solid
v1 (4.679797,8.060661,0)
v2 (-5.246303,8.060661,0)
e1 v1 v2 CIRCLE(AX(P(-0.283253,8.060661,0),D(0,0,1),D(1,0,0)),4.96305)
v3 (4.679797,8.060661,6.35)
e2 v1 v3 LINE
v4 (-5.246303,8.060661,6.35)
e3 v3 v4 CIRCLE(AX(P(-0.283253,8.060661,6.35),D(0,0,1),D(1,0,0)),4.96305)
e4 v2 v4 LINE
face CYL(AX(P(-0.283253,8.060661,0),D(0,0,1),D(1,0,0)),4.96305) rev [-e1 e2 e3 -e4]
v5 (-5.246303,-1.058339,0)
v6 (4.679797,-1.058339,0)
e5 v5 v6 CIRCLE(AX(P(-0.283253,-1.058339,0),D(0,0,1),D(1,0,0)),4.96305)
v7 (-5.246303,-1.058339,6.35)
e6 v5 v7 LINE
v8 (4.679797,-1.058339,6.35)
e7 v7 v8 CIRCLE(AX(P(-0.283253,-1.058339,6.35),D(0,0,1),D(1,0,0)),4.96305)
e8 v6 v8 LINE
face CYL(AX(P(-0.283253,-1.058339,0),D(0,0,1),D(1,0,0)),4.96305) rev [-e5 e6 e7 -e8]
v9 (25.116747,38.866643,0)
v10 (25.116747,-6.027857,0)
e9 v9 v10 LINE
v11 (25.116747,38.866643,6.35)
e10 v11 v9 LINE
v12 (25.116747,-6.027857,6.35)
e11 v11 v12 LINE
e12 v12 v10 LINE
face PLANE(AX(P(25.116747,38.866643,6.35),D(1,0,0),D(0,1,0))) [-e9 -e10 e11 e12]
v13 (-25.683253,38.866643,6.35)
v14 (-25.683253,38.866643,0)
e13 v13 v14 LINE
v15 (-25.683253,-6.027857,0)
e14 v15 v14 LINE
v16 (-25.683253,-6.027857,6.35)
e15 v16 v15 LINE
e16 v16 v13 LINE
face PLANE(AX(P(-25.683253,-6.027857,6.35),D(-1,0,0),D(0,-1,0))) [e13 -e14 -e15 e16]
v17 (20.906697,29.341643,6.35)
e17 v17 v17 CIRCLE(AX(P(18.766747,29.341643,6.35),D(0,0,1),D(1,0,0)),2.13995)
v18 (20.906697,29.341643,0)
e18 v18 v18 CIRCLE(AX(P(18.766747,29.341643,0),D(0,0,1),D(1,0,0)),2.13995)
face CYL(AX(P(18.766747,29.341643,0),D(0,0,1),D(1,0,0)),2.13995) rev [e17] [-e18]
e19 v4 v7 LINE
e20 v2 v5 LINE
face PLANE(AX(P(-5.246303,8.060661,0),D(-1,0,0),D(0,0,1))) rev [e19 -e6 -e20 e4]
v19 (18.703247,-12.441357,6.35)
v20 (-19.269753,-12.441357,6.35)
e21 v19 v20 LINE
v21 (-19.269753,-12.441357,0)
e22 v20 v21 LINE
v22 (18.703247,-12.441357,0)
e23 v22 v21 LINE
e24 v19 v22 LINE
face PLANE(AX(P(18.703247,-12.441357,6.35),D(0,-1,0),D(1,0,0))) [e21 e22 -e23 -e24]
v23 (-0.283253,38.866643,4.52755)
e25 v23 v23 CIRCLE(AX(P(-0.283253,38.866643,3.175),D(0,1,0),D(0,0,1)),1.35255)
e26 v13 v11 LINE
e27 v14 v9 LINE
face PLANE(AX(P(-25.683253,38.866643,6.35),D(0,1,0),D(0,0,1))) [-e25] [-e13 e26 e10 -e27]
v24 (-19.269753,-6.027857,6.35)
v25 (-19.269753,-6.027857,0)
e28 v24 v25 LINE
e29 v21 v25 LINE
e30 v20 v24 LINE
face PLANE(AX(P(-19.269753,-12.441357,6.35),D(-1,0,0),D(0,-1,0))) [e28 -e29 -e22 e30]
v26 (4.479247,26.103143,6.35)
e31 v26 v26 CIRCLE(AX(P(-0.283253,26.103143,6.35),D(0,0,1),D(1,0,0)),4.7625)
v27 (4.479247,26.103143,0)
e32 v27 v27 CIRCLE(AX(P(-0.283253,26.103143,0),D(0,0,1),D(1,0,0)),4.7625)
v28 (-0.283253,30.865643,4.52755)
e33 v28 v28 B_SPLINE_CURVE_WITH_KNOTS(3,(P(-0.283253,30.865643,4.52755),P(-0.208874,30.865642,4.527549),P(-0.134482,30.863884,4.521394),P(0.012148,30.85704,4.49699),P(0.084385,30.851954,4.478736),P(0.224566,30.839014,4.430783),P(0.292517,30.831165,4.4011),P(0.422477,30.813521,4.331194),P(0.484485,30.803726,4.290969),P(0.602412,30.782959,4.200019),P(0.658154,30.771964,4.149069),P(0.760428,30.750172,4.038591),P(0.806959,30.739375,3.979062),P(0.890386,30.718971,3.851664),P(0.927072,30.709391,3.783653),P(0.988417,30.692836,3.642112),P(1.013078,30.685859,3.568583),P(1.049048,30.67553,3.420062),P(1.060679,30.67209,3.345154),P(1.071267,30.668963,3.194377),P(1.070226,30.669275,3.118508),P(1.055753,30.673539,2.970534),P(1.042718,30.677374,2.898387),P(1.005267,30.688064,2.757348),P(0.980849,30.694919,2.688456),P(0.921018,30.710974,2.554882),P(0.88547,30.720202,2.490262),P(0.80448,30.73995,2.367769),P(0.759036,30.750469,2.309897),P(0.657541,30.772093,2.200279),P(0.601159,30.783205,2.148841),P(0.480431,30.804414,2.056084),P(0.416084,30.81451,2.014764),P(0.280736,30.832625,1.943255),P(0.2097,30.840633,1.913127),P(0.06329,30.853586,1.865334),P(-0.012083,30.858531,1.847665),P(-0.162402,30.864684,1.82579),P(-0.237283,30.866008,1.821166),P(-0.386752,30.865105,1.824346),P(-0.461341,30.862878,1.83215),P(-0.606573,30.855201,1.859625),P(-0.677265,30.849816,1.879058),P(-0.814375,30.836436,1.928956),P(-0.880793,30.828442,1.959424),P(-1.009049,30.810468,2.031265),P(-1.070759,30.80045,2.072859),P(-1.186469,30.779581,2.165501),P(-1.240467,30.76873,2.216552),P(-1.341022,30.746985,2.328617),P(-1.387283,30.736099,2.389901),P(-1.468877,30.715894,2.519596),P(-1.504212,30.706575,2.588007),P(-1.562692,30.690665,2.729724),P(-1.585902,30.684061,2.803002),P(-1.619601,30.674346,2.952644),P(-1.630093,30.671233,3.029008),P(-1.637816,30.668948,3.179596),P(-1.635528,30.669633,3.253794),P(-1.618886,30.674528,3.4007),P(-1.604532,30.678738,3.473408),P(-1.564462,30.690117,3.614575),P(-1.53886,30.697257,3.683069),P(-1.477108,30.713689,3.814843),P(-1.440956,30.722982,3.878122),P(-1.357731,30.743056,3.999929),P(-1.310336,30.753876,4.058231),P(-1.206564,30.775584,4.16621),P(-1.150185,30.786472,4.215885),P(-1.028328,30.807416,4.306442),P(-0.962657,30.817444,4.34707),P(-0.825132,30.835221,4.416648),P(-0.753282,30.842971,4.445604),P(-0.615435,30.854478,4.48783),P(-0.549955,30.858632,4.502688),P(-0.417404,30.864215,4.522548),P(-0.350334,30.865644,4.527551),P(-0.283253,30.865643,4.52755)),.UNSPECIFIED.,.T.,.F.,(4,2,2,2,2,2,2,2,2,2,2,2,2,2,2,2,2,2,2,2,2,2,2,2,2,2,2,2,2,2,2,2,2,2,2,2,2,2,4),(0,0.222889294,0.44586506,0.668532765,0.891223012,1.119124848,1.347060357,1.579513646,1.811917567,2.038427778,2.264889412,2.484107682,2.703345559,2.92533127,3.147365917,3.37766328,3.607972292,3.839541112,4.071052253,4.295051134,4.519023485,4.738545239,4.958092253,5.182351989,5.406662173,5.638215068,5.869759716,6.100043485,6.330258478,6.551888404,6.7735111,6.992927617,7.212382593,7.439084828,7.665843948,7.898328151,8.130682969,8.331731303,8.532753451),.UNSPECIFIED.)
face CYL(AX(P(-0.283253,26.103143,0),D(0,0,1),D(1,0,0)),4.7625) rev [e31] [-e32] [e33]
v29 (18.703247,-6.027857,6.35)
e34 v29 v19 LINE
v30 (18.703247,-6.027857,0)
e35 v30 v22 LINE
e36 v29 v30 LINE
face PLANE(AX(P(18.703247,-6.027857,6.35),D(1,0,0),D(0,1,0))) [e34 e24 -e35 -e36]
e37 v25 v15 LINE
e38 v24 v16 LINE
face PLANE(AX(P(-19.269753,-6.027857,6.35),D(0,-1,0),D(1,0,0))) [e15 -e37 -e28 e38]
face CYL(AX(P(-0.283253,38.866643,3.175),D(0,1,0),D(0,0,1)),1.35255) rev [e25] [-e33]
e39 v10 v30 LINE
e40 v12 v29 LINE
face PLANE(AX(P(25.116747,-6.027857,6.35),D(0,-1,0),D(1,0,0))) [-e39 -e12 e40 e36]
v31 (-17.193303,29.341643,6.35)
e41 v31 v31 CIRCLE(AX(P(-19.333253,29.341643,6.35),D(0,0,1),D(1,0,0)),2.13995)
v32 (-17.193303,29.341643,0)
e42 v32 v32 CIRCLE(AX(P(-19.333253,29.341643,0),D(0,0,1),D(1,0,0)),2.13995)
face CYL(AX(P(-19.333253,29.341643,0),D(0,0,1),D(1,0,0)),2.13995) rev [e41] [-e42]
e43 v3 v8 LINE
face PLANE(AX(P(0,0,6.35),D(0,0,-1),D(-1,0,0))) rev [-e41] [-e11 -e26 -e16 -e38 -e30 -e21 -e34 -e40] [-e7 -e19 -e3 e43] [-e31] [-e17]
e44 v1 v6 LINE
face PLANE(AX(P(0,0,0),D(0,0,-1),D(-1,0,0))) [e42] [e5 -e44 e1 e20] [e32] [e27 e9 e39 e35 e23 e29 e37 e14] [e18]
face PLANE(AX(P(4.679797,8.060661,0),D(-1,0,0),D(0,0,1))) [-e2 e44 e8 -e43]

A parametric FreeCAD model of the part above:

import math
import FreeCAD as App
import Part
import Sketcher

V = App.Vector
Q = App.Units.Quantity

doc = App.newDocument("Part")
body = doc.addObject("PartDesign::Body", "Body")

# Sketch on XY plane
sketch1 = doc.addObject("Sketcher::SketchObject", "Sketch")
body.addObject(sketch1)
sketch1.AttachmentSupport = (doc.XY_Plane, [""])
sketch1.MapMode = "FlatFace"
sketch1.addGeometry([
    Part.LineSegment(V(25.116747, 38.866643, 0), V(-25.683253, 38.866643, 0)),  # 0
    Part.LineSegment(V(-25.683253, 38.866643, 0), V(-25.683253, -6.027857, 0)),  # 1
    Part.LineSegment(V(-25.683253, -6.027857, 0), V(-19.269753, -6.027857, 0)),  # 2
    Part.LineSegment(V(-19.269753, -6.027857, 0), V(-19.269753, -12.441357, 0)),  # 3
    Part.LineSegment(V(-19.269753, -12.441357, 0), V(18.703247, -12.441357, 0)),  # 4
    Part.LineSegment(V(18.703247, -12.441357, 0), V(18.703247, -6.027857, 0)),  # 5
    Part.LineSegment(V(18.703247, -6.027857, 0), V(25.116747, -6.027857, 0)),  # 6
    Part.LineSegment(V(25.116747, -6.027857, 0), V(25.116747, 38.866643, 0)),  # 7
], False)
sketch1.addConstraint([
    Sketcher.Constraint("Coincident", 0, 2, 1, 1),
    Sketcher.Constraint("Coincident", 1, 2, 2, 1),
    Sketcher.Constraint("Coincident", 2, 2, 3, 1),
    Sketcher.Constraint("Coincident", 3, 2, 4, 1),
    Sketcher.Constraint("Coincident", 4, 2, 5, 1),
    Sketcher.Constraint("Coincident", 5, 2, 6, 1),
    Sketcher.Constraint("Coincident", 6, 2, 7, 1),
    Sketcher.Constraint("Coincident", 7, 2, 0, 1),
    Sketcher.Constraint("Horizontal", 0),
    Sketcher.Constraint("Vertical", 1),
    Sketcher.Constraint("Horizontal", 2),
    Sketcher.Constraint("Vertical", 3),
    Sketcher.Constraint("Horizontal", 4),
    Sketcher.Constraint("Vertical", 5),
    Sketcher.Constraint("Horizontal", 6),
    Sketcher.Constraint("Vertical", 7),
    Sketcher.Constraint("Horizontal", 2, 2, 5, 2),
    Sketcher.Constraint("Equal", 2, 6),
    Sketcher.Constraint("Equal", 6, 3),
    Sketcher.Constraint("DistanceX", 0, 2, 0, 1, Q("2 in")),
    Sketcher.Constraint("DistanceX", 4, 1, 4, 2, Q("1.495 in")),
    Sketcher.Constraint("DistanceY", 3, 2, 0, 2, Q("2.02 in")),
    Sketcher.Constraint("DistanceX", 0, 2, -1, 1, 25.683253),
    Sketcher.Constraint("DistanceY", -1, 1, 0, 2, 38.866643),
])
pad1 = doc.addObject("PartDesign::Pad", "Pad")
body.addObject(pad1)
pad1.Profile = sketch1
pad1.Length = Q("0.25 in")

# Sketch on XY plane
sketch2 = doc.addObject("Sketcher::SketchObject", "Sketch001")
body.addObject(sketch2)
sketch2.AttachmentSupport = (doc.XY_Plane, [""])
sketch2.MapMode = "FlatFace"
sketch2.AttachmentOffset = App.Placement(V(0, 0, 0.25 * 25.4), App.Rotation())
sketch2.addGeometry(Part.Circle(V(-0.283253, 26.103143, 0), V(0, 0, 1), 4.7625), False)
sketch2.addConstraint([
    Sketcher.Constraint("Diameter", 0, Q("0.375 in")),
    Sketcher.Constraint("DistanceX", 0, 3, -1, 1, 0.283253),
    Sketcher.Constraint("DistanceY", -1, 1, 0, 3, 26.103143),
])
pocket1 = doc.addObject("PartDesign::Pocket", "Pocket")
body.addObject(pocket1)
pocket1.Profile = sketch2
pocket1.Length = Q("0.25 in")

# Sketch on XY plane
sketch3 = doc.addObject("Sketcher::SketchObject", "Sketch002")
body.addObject(sketch3)
sketch3.AttachmentSupport = (doc.XY_Plane, [""])
sketch3.MapMode = "FlatFace"
sketch3.AttachmentOffset = App.Placement(V(0, 0, 0.25 * 25.4), App.Rotation())
sketch3.addGeometry([
    Part.Circle(V(-19.333253, 29.341643, 0), V(0, 0, 1), 2.13995),
    Part.Circle(V(18.766747, 29.341643, 0), V(0, 0, 1), 2.13995),
], False)
sketch3.addConstraint([
    Sketcher.Constraint("Equal", 0, 1),
    Sketcher.Constraint("Horizontal", 0, 3, 1, 3),
    Sketcher.Constraint("Diameter", 0, Q("0.1685 in")),
    Sketcher.Constraint("DistanceX", 0, 3, 1, 3, Q("1.5 in")),
    Sketcher.Constraint("DistanceX", 0, 3, -1, 1, 19.333253),
    Sketcher.Constraint("DistanceY", -1, 1, 0, 3, 29.341643),
])
pocket2 = doc.addObject("PartDesign::Pocket", "Pocket001")
body.addObject(pocket2)
pocket2.Profile = sketch3
pocket2.Length = Q("0.25 in")

# Sketch on XY plane
sketch4 = doc.addObject("Sketcher::SketchObject", "Sketch003")
body.addObject(sketch4)
sketch4.AttachmentSupport = (doc.XY_Plane, [""])
sketch4.MapMode = "FlatFace"
sketch4.AttachmentOffset = App.Placement(V(0, 0, 0.25 * 25.4), App.Rotation())
sketch4.addGeometry([
    Part.LineSegment(V(4.679797, -1.058339, 0), V(4.679797, 8.060661, 0)),
    Part.ArcOfCircle(Part.Circle(V(-0.283253, 8.060661, 0), V(0, 0, 1), 4.96305), math.radians(0), math.radians(180)),
    Part.LineSegment(V(-5.246303, 8.060661, 0), V(-5.246303, -1.058339, 0)),
    Part.ArcOfCircle(Part.Circle(V(-0.283253, -1.058339, 0), V(0, 0, 1), 4.96305), math.radians(-180), math.radians(0)),
], False)
sketch4.addConstraint([
    Sketcher.Constraint("Tangent", 0, 2, 1, 1),
    Sketcher.Constraint("Tangent", 1, 2, 2, 1),
    Sketcher.Constraint("Tangent", 2, 2, 3, 1),
    Sketcher.Constraint("Tangent", 3, 2, 0, 1),
    Sketcher.Constraint("Vertical", 0),
    Sketcher.Constraint("Vertical", 2),
    Sketcher.Constraint("Radius", 1, 4.96305),
    Sketcher.Constraint("DistanceY", 0, 1, 0, 2, 9.119),
    Sketcher.Constraint("DistanceY", -1, 1, 1, 3, 8.060661),
    Sketcher.Constraint("DistanceX", 1, 3, -1, 1, 0.283253),
])
pocket3 = doc.addObject("PartDesign::Pocket", "Pocket002")
body.addObject(pocket3)
pocket3.Profile = sketch4
pocket3.Length = Q("0.25 in")

# Sketch on XZ plane
sketch5 = doc.addObject("Sketcher::SketchObject", "Sketch004")
body.addObject(sketch5)
sketch5.AttachmentSupport = (doc.XZ_Plane, [""])
sketch5.MapMode = "FlatFace"
sketch5.AttachmentOffset = App.Placement(V(0, 0, -38.866643), App.Rotation())
sketch5.addGeometry(Part.Circle(V(-0.283253, 3.175, 0), V(0, 0, 1), 1.35255), False)
sketch5.addConstraint([
    Sketcher.Constraint("Diameter", 0, Q("0.1065 in")),
    Sketcher.Constraint("DistanceY", -1, 1, 0, 3, Q("0.125 in")),
    Sketcher.Constraint("DistanceX", 0, 3, -1, 1, 0.283253),
])
pocket4 = doc.addObject("PartDesign::Pocket", "Pocket003")
body.addObject(pocket4)
pocket4.Profile = sketch5
pocket4.Type = "UpToFirst"
pocket4.Reversed = True

doc.recompute()
